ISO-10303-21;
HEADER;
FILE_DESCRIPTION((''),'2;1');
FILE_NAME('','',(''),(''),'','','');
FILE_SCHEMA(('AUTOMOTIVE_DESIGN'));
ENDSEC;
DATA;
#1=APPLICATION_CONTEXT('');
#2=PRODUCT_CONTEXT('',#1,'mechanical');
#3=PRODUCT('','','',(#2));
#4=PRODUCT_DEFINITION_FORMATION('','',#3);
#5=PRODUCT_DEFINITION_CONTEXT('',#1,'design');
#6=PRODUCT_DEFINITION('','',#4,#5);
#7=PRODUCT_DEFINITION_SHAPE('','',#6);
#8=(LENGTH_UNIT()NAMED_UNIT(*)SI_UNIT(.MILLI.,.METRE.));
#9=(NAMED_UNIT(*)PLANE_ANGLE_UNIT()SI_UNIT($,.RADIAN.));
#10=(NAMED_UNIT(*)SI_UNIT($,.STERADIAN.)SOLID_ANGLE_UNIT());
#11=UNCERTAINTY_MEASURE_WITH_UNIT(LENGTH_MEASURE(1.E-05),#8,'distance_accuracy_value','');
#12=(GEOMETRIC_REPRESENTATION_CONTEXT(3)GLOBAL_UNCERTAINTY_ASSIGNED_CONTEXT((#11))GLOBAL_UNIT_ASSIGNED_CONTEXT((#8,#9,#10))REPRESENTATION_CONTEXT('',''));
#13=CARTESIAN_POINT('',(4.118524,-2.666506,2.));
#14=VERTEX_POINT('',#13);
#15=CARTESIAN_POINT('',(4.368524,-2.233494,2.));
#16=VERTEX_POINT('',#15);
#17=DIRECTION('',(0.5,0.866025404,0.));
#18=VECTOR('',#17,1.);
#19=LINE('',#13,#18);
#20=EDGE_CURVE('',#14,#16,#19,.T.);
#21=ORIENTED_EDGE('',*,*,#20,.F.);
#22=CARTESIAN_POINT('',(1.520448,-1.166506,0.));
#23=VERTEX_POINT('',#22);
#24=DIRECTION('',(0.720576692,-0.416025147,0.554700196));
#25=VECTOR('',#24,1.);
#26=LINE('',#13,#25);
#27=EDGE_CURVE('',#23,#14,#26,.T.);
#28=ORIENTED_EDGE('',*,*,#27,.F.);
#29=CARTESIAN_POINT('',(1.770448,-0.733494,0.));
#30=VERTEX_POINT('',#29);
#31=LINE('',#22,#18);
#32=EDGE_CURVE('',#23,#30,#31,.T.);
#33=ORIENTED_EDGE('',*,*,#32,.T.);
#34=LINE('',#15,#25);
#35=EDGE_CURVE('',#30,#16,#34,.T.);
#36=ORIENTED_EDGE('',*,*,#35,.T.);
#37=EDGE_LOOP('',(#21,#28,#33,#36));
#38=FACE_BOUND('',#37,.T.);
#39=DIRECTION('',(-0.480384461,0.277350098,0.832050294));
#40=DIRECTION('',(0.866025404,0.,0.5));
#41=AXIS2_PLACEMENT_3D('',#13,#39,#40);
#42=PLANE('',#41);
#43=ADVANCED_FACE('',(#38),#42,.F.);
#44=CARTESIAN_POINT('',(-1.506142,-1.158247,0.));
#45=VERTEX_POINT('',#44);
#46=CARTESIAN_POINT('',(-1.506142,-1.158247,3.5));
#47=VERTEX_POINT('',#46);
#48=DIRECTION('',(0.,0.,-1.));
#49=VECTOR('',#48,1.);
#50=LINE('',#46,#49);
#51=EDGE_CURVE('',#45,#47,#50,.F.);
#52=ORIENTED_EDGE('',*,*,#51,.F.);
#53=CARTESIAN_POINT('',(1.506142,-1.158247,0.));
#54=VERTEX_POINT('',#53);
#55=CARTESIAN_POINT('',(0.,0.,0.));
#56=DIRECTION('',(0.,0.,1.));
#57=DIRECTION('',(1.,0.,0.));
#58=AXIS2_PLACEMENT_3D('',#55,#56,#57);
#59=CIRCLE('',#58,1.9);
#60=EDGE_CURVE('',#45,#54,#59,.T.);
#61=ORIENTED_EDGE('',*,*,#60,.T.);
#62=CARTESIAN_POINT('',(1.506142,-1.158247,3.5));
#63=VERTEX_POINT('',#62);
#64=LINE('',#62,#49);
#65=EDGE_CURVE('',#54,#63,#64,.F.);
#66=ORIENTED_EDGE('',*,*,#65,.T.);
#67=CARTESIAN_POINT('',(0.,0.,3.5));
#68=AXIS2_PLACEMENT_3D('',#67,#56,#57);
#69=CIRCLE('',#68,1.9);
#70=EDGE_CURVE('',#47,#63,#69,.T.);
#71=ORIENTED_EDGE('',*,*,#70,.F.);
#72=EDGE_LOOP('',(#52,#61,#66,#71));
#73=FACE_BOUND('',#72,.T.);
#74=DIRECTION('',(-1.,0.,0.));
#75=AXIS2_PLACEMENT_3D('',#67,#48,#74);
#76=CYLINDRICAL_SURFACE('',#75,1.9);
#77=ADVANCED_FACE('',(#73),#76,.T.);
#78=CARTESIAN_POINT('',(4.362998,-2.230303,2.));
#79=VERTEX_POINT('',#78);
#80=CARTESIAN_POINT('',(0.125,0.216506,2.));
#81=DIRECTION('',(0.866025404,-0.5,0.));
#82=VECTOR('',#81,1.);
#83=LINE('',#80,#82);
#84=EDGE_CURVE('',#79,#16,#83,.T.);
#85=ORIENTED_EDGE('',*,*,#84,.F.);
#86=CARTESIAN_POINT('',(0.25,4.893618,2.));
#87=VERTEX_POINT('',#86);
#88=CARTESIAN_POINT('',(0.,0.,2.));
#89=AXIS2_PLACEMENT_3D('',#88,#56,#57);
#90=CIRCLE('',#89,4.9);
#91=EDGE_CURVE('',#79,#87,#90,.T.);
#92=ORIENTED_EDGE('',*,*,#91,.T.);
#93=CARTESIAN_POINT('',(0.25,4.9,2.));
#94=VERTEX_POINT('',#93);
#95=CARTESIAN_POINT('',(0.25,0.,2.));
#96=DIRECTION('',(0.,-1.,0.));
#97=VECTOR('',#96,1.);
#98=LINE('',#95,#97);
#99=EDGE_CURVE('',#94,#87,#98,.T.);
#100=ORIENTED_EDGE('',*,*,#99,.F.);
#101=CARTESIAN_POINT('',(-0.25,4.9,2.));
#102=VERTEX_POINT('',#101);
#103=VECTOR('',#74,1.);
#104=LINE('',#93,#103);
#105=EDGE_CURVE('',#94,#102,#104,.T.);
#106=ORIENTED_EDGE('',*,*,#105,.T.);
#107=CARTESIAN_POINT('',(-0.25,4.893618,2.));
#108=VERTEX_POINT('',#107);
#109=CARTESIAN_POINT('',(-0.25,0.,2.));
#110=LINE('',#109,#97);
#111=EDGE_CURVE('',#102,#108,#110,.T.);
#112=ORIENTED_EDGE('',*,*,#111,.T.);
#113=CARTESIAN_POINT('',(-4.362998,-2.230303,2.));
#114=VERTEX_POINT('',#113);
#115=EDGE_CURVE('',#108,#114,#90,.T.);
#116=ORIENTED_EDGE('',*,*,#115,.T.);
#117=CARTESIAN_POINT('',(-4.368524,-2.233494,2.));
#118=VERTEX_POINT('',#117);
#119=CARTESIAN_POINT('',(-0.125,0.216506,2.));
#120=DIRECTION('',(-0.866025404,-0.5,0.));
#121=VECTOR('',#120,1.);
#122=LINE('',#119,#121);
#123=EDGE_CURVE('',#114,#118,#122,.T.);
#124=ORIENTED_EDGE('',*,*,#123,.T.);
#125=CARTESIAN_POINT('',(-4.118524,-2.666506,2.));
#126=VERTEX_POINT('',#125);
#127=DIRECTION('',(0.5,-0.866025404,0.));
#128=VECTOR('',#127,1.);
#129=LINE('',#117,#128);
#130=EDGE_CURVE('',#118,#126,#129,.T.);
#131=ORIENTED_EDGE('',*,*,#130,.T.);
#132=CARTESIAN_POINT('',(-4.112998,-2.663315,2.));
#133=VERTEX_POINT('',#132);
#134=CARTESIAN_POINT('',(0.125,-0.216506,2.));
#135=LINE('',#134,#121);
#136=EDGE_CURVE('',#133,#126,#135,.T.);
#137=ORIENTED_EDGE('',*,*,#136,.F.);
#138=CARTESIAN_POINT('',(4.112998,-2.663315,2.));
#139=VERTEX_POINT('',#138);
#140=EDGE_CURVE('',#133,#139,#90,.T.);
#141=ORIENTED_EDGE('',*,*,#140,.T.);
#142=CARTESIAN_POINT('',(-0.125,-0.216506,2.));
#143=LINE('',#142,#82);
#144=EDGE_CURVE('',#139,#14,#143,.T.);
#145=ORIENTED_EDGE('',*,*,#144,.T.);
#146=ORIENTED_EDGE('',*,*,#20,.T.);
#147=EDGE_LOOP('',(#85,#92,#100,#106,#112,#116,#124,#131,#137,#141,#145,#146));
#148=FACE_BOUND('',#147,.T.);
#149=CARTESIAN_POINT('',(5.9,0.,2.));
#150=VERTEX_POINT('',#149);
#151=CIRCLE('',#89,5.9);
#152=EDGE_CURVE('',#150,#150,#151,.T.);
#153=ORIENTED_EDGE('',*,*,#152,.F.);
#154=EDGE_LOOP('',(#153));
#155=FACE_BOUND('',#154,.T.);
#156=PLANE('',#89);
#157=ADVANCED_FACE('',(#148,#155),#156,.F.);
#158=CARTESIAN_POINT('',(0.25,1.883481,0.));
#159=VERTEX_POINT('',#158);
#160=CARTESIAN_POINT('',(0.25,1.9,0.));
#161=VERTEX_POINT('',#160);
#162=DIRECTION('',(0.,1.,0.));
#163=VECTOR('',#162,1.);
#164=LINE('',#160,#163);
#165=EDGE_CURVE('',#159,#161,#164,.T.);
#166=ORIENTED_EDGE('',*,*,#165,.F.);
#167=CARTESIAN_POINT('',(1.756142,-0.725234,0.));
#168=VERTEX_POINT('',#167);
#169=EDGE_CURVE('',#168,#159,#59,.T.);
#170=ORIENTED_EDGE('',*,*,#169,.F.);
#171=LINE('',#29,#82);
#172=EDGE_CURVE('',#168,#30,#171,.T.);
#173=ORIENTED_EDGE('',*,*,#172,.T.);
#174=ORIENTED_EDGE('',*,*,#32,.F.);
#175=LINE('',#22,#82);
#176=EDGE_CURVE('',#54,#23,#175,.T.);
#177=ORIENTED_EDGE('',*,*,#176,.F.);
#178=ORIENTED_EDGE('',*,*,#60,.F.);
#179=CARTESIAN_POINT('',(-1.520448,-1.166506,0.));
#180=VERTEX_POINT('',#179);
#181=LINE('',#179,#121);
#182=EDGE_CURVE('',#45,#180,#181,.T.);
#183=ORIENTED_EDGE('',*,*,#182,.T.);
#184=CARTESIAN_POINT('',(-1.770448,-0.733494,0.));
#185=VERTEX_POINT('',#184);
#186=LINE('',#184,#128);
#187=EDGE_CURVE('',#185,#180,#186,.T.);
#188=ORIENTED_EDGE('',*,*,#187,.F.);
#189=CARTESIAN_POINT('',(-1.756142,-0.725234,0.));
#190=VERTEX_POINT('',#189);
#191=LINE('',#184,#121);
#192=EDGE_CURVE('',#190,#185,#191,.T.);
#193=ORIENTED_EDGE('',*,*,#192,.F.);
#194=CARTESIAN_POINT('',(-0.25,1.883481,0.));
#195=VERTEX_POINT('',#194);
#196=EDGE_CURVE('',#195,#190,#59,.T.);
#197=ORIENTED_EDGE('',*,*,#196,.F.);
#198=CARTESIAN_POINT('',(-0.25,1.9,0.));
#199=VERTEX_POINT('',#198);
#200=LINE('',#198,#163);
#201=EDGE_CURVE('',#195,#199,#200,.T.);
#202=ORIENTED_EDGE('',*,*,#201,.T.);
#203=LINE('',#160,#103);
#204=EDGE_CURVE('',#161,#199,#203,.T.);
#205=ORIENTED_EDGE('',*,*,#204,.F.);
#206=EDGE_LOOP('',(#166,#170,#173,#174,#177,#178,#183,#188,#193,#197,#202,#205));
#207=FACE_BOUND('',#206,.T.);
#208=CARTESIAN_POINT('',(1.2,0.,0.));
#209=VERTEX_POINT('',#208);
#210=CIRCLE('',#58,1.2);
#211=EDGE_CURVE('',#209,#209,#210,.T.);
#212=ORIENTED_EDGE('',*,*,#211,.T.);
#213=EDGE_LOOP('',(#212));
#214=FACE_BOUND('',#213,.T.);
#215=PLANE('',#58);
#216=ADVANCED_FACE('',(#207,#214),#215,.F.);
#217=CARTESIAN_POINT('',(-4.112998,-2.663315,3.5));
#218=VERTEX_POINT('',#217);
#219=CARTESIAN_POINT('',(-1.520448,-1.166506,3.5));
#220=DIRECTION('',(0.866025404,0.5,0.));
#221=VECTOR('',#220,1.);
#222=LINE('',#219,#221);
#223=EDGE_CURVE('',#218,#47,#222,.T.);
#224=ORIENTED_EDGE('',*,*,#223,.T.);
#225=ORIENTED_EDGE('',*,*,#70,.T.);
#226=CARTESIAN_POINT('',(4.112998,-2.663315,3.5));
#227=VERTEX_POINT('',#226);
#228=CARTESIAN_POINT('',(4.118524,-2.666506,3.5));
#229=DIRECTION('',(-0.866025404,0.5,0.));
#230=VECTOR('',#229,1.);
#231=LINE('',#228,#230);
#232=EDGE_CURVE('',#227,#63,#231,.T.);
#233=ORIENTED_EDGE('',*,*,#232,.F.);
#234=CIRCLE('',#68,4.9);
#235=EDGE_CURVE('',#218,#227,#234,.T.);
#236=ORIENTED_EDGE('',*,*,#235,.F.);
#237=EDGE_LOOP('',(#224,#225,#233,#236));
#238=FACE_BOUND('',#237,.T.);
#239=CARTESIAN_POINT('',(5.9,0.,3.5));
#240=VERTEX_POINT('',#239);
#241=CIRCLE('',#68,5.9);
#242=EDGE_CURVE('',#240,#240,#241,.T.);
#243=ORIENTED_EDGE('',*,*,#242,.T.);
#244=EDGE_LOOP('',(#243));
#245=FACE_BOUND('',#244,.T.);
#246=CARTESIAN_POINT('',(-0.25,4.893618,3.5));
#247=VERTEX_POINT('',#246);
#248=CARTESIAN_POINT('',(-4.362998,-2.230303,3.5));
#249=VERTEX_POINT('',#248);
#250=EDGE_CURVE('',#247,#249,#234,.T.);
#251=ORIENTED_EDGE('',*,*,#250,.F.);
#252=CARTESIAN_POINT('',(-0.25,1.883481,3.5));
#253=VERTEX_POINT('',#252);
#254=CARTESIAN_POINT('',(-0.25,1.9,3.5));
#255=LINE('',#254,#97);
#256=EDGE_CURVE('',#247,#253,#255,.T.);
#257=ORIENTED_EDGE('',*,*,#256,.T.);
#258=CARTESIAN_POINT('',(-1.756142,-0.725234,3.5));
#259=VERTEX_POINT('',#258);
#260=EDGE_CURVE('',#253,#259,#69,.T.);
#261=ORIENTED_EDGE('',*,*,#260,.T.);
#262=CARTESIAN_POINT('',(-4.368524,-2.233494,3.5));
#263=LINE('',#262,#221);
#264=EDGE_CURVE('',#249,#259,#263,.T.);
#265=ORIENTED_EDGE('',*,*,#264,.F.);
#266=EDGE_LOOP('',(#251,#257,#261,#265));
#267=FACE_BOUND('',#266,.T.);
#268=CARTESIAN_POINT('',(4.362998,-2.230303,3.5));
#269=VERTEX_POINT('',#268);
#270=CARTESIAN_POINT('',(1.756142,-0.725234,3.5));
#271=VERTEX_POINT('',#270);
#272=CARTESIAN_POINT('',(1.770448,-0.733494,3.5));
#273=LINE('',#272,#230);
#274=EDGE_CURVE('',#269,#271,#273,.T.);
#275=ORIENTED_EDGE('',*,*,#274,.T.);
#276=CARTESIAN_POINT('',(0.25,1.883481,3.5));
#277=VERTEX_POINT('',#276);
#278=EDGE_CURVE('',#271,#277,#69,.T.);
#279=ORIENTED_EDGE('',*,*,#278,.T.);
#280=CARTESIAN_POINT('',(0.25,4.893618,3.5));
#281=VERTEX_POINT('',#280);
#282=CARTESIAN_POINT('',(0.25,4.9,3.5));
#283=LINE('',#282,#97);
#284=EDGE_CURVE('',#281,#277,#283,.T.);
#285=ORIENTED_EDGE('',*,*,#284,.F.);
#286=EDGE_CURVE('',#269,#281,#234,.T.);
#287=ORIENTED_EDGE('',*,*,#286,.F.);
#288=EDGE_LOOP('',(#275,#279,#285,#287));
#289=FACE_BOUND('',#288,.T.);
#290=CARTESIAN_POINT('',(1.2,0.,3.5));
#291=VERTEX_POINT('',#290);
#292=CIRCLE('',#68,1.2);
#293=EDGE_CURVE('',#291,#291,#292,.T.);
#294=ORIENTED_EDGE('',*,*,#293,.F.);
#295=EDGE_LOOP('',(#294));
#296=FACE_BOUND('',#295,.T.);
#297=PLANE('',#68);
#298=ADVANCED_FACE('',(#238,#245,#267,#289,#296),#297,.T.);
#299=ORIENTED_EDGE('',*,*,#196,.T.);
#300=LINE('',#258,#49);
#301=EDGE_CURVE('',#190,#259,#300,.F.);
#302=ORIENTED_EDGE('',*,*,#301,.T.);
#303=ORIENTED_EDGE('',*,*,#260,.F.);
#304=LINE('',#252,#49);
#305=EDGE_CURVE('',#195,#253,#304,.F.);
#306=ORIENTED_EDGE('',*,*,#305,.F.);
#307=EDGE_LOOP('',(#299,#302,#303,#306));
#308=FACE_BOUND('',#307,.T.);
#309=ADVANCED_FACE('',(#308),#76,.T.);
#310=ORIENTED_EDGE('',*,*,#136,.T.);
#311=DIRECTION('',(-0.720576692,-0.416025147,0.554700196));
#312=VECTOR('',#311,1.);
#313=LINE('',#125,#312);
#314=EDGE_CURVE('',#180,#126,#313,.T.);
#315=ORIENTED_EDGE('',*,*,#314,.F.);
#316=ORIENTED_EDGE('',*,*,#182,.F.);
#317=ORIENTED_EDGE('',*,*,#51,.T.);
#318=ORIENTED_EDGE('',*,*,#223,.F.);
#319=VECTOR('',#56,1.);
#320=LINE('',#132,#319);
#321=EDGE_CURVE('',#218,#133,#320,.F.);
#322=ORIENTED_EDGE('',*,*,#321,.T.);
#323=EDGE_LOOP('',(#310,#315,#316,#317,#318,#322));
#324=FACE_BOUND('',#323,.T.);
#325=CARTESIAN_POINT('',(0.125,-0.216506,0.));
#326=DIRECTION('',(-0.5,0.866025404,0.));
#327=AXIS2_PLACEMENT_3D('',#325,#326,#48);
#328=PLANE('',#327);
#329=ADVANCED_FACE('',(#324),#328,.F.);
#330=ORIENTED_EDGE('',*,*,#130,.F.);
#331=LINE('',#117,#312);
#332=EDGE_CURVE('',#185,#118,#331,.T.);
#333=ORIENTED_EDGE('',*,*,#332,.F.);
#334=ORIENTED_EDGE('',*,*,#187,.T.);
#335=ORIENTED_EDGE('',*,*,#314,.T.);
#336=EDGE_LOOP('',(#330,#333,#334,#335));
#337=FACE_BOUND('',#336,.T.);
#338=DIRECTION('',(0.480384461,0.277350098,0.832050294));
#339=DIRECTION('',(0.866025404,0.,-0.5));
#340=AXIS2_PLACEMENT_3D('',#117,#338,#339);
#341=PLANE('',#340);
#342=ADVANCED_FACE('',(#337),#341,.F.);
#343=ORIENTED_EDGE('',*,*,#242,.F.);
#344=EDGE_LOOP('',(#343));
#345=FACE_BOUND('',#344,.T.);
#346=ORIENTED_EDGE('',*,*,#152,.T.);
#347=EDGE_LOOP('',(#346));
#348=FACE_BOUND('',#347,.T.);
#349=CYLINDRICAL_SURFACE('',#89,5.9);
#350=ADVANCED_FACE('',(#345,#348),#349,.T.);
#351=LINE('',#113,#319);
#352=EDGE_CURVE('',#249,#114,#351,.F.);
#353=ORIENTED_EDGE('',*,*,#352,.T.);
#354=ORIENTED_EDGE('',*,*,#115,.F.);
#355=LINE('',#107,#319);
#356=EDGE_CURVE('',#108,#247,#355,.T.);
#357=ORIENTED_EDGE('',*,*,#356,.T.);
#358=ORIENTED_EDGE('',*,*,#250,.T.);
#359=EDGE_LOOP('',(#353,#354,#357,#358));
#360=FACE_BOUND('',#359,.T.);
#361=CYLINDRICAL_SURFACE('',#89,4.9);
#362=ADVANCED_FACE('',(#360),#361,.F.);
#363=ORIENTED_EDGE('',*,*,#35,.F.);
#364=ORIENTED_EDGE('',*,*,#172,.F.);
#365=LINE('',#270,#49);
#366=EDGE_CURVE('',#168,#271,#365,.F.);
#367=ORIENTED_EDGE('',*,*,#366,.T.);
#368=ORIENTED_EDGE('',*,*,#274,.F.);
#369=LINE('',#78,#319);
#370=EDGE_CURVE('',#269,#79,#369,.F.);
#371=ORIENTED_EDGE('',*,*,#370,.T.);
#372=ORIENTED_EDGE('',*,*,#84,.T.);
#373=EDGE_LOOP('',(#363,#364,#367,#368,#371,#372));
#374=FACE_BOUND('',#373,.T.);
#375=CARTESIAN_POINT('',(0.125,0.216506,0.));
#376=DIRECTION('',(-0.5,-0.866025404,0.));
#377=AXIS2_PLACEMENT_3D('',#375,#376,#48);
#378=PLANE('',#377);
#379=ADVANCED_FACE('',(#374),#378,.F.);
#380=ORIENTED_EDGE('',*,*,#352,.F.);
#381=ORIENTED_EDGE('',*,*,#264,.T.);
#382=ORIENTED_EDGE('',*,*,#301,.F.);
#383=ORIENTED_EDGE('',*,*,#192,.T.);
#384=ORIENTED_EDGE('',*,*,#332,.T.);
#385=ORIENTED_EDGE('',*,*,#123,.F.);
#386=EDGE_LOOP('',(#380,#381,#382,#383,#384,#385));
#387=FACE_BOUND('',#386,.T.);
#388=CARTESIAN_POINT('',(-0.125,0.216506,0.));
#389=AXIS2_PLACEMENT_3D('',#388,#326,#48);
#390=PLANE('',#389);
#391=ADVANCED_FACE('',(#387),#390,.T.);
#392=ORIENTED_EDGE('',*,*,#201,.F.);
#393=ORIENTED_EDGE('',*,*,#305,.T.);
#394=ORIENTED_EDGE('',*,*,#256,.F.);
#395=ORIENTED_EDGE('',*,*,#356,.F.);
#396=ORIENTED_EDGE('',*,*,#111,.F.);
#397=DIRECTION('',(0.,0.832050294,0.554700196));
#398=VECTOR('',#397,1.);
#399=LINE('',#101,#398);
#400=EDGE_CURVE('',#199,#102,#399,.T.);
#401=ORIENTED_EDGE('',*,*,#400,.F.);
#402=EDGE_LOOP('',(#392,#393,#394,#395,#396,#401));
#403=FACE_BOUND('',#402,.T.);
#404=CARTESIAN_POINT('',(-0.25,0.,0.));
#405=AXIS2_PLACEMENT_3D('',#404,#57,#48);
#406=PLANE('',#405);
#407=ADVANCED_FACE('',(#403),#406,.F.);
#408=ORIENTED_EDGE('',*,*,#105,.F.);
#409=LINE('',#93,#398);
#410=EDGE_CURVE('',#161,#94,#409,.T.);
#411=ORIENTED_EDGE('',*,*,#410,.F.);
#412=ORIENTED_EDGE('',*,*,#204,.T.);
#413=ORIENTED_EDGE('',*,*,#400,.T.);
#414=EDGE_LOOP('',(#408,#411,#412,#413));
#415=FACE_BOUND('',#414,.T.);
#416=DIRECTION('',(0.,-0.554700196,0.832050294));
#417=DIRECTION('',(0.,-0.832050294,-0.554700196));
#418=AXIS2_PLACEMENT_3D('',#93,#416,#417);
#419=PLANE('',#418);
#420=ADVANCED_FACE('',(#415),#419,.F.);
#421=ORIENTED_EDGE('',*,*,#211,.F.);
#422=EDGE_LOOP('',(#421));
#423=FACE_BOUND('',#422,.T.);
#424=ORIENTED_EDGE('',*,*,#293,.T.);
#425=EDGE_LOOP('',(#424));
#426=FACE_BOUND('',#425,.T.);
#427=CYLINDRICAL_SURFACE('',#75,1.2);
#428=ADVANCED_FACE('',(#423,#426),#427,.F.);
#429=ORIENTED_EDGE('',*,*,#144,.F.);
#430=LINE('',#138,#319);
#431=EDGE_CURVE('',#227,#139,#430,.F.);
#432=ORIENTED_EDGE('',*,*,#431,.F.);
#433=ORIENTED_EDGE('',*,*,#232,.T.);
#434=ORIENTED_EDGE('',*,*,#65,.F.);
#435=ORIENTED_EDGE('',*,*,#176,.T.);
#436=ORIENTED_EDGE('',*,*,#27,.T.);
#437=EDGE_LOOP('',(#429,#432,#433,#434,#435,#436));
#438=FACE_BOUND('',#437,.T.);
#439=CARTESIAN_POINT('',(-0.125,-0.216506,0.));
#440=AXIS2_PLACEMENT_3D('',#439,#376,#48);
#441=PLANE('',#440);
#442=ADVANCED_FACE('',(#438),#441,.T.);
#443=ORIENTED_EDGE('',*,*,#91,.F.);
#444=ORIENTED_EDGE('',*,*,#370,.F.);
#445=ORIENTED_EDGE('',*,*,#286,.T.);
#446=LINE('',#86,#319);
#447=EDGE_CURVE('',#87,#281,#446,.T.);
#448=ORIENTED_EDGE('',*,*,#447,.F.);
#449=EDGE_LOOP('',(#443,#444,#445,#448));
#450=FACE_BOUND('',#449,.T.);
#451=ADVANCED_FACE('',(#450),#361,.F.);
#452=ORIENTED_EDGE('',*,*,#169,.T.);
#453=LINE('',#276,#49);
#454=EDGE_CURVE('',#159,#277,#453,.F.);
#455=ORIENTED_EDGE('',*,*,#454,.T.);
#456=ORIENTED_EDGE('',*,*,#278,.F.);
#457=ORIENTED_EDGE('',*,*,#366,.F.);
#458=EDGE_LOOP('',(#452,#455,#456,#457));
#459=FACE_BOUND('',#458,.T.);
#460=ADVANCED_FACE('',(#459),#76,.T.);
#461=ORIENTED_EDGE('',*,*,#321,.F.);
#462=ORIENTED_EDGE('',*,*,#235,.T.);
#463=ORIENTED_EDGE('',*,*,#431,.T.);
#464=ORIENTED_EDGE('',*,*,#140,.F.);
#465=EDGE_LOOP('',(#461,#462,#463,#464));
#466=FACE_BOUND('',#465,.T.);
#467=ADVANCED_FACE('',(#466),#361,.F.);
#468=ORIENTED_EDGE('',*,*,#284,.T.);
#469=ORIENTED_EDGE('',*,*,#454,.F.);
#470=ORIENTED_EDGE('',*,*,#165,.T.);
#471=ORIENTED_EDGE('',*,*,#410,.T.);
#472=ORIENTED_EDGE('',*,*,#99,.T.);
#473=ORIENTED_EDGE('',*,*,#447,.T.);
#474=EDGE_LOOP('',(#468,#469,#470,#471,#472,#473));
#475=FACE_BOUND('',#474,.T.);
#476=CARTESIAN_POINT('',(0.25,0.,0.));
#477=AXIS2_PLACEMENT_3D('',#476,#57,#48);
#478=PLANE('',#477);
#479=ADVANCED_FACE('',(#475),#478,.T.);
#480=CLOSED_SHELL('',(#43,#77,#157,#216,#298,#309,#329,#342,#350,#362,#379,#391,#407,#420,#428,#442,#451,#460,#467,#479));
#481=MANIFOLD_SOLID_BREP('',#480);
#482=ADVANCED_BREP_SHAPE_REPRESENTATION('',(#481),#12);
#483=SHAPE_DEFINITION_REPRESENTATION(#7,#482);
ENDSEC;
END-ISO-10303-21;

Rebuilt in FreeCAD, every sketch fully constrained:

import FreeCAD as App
import Part
import Sketcher
Q = App.Units.Quantity

doc = App.newDocument("Part")
body = doc.addObject("PartDesign::Body", "Body")

# Sketch on XY plane
sketch1 = doc.addObject("Sketcher::SketchObject", "Sketch")
body.addObject(sketch1)
sketch1.AttachmentSupport = (doc.XY_Plane, [""])
sketch1.MapMode = "FlatFace"
sketch1.addGeometry([
    Part.Circle(App.Vector(0, 0, 0), App.Vector(0, 0, 1), 1.9),
    Part.Circle(App.Vector(0, 0, 0), App.Vector(0, 0, 1), 1.2),
], False)
sketch1.addConstraint([
    Sketcher.Constraint("Coincident", 0, 3, -1, 1),
    Sketcher.Constraint("Coincident", 1, 3, -1, 1),
    Sketcher.Constraint("Diameter", 0, Q("3.8 mm")),
    Sketcher.Constraint("Diameter", 1, Q("2.4 mm")),
])
pad1 = doc.addObject("PartDesign::Pad", "Pad")
body.addObject(pad1)
pad1.Profile = sketch1
pad1.Length = 3.5
body2 = doc.addObject("PartDesign::Body", "Body001")

# Sketch on XY plane
sketch2 = doc.addObject("Sketcher::SketchObject", "Sketch001")
body2.addObject(sketch2)
sketch2.AttachmentSupport = (doc.getObject("XY_Plane001"), [""])
sketch2.MapMode = "FlatFace"
sketch2.AttachmentOffset = App.Placement(App.Vector(0, 0, 3.5), App.Rotation())
sketch2.addGeometry([
    Part.Circle(App.Vector(0, 0, 0), App.Vector(0, 0, 1), 5.9),
    Part.Circle(App.Vector(0, 0, 0), App.Vector(0, 0, 1), 4.9),
], False)
sketch2.addConstraint([
    Sketcher.Constraint("Coincident", 0, 3, -1, 1),
    Sketcher.Constraint("Coincident", 1, 3, -1, 1),
    Sketcher.Constraint("Diameter", 0, Q("11.8 mm")),
    Sketcher.Constraint("Diameter", 1, Q("9.8 mm")),
])
pad2 = doc.addObject("PartDesign::Pad", "Pad001")
body2.addObject(pad2)
pad2.Profile = sketch2
pad2.Length = 1.5
pad2.Reversed = True
body.AllowCompound = True
doc.recompute()

boolean = doc.addObject("PartDesign::Boolean", "Boolean")
body.addObject(boolean)
boolean.Type = "Fuse"
boolean.addObjects([body2])

# Sketch on YZ plane
sketch3 = doc.addObject("Sketcher::SketchObject", "Sketch002")
body.addObject(sketch3)
sketch3.AttachmentSupport = (doc.YZ_Plane, [""])
sketch3.MapMode = "FlatFace"
sketch3.addGeometry([
    Part.LineSegment(App.Vector(4.9, 2, 0), App.Vector(4.9, 3.5, 0)),  # 0
    Part.LineSegment(App.Vector(4.9, 3.5, 0), App.Vector(1.7, 3.5, 0)),  # 1
    Part.LineSegment(App.Vector(1.7, 3.5, 0), App.Vector(1.7, 0, 0)),  # 2
    Part.LineSegment(App.Vector(1.7, 0, 0), App.Vector(1.9, 0, 0)),  # 3
    Part.LineSegment(App.Vector(1.9, 0, 0), App.Vector(4.9, 2, 0)),  # 4
], False)
sketch3.addConstraint([
    Sketcher.Constraint("Coincident", 0, 2, 1, 1),
    Sketcher.Constraint("Coincident", 1, 2, 2, 1),
    Sketcher.Constraint("Coincident", 2, 2, 3, 1),
    Sketcher.Constraint("Coincident", 3, 2, 4, 1),
    Sketcher.Constraint("Coincident", 4, 2, 0, 1),
    Sketcher.Constraint("Vertical", 0),
    Sketcher.Constraint("Horizontal", 1),
    Sketcher.Constraint("Vertical", 2),
    Sketcher.Constraint("Horizontal", 3),
    Sketcher.Constraint("PointOnObject", 2, 2, -1),
    Sketcher.Constraint("DistanceX", 1, 2, 1, 1, Q("3.2 mm")),
    Sketcher.Constraint("DistanceX", 3, 1, 3, 2, Q("0.2 mm")),
    Sketcher.Constraint("DistanceY", 0, 1, 0, 2, Q("1.5 mm")),
    Sketcher.Constraint("DistanceY", 2, 2, 2, 1, Q("3.5 mm")),
    Sketcher.Constraint("DistanceX", -1, 1, 0, 2, Q("4.9 mm")),
])
pad3 = doc.addObject("PartDesign::Pad", "Pad002")
body.addObject(pad3)
pad3.Profile = sketch3
pad3.Length = 0.5
pad3.Midplane = True
doc.recompute()

polarpattern = doc.addObject("PartDesign::PolarPattern", "PolarPattern")
body.addObject(polarpattern)
polarpattern.Originals = [pad3]
polarpattern.Axis = (doc.Z_Axis, [""])
polarpattern.Angle = 360
polarpattern.Occurrences = 3
body.Tip = polarpattern

doc.recompute()
